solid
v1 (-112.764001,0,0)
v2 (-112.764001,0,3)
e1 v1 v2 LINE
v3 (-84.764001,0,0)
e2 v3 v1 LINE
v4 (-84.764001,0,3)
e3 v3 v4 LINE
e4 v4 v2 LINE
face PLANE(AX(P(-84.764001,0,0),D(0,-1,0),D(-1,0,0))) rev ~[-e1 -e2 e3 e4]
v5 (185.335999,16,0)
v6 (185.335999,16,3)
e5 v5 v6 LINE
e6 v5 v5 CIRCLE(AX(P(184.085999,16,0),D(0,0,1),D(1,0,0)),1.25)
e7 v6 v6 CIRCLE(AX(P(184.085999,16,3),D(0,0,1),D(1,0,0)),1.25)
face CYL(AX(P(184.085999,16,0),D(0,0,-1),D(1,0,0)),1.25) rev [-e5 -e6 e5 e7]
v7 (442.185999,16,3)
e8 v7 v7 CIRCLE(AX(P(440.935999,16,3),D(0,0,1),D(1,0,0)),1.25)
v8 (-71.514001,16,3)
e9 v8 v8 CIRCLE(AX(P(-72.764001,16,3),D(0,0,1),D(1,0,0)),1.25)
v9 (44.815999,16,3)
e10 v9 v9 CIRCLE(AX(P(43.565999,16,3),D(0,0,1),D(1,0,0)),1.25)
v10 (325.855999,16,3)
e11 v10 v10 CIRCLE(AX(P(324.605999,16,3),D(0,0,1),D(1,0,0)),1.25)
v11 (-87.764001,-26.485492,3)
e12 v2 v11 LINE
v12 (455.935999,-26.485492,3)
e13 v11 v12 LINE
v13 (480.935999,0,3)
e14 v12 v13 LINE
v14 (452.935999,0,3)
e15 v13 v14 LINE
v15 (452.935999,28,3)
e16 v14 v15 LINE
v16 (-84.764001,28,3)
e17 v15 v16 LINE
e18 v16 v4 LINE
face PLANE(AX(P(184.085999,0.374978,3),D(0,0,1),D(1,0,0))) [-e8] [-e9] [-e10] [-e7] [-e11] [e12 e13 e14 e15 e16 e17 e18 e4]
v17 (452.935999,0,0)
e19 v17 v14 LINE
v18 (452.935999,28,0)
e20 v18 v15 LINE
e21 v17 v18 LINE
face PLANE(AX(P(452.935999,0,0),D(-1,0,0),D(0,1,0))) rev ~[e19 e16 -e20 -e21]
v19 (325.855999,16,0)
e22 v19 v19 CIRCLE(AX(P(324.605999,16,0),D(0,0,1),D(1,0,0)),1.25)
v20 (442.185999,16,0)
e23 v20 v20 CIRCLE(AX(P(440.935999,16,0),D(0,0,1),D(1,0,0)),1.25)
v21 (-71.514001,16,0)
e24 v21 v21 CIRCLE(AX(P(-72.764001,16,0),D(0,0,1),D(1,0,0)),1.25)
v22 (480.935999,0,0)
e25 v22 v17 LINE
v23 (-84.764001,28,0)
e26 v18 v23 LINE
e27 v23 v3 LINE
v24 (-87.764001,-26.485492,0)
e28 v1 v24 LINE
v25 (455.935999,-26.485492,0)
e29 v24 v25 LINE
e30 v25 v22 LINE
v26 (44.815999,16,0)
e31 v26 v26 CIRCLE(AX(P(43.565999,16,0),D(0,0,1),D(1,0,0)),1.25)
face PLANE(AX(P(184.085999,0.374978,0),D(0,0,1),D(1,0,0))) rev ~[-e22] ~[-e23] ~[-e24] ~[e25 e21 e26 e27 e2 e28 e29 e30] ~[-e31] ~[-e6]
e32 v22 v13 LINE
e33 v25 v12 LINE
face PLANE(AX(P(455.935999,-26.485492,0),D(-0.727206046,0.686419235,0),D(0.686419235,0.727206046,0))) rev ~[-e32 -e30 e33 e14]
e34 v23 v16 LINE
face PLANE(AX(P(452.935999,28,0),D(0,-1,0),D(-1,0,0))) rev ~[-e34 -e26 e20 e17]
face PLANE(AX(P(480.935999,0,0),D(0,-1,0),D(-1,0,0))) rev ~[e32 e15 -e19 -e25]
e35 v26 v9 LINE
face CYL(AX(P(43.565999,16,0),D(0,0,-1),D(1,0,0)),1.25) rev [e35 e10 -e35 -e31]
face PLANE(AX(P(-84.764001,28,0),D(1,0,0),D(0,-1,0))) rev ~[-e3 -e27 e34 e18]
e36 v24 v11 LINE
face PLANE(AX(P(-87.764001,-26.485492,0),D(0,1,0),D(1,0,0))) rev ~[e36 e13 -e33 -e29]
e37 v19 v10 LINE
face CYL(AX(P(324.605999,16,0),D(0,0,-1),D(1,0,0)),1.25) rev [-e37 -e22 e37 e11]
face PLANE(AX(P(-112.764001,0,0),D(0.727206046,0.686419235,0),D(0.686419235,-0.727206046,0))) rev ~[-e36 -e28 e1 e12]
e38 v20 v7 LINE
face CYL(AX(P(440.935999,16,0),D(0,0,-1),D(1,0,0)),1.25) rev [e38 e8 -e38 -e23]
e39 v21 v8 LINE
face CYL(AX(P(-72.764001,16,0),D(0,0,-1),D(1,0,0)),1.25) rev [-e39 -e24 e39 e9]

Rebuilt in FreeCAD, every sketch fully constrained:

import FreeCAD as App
import Part
import Sketcher
from FreeCAD import Vector


def add_polygon(sketch, points):
    """Adds a closed chain of lines whose ends are joined by coincident constraints."""
    first, n = sketch.GeometryCount, len(points)
    for a, b in zip(points, points[1:] + points[:1]):
        sketch.addGeometry(Part.LineSegment(App.Vector(*a, 0), App.Vector(*b, 0)), False)
    for i in range(n):
        sketch.addConstraint(Sketcher.Constraint("Coincident", first + i, 2, first + (i + 1) % n, 1))

doc = App.newDocument("Part")
params = doc.addObject("Spreadsheet::Sheet", "Params")
for row, (alias, value) in enumerate([
    ("sketch1_diameter", "2.5 mm"),
    ("sketch1_width", "28 mm"),
    ("sketch1_width2", "543.7 mm"),
    ("sketch1_width3", "537.7 mm"),
    ("pad1_length", "3 mm"),
], start=1):
    params.set(f"A{row}", alias)
    params.set(f"B{row}", "=" + value)
    params.setAlias(f"B{row}", alias)

body = doc.addObject("PartDesign::Body", "Body")

# Sketch on XY plane
sketch1 = doc.addObject("Sketcher::SketchObject", "Sketch")
body.addObject(sketch1)
sketch1.AttachmentSupport = (doc.XY_Plane, [""])
sketch1.MapMode = "FlatFace"
add_polygon(sketch1, [(-87.8, -26.5), (455.9, -26.5), (480.9, 0), (452.9, 0), (452.9, 28), (-84.8, 28), (-84.8, 0), (-112.8, 0)])  # lines 0-7
sketch1.addGeometry(Part.Circle(Vector(-72.8, 16, 0), Vector(0, 0, 1), 1.2), False)  # 8
sketch1.addGeometry(Part.Circle(Vector(43.6, 16, 0), Vector(0, 0, 1), 1.2), False)  # 9
sketch1.addGeometry(Part.Circle(Vector(184.1, 16, 0), Vector(0, 0, 1), 1.2), False)  # 10
sketch1.addGeometry(Part.Circle(Vector(324.6, 16, 0), Vector(0, 0, 1), 1.2), False)  # 11
sketch1.addGeometry(Part.Circle(Vector(440.9, 16, 0), Vector(0, 0, 1), 1.2), False)  # 12
sketch1.addConstraint(Sketcher.Constraint("Horizontal", 0))
sketch1.addConstraint(Sketcher.Constraint("Horizontal", 2))
sketch1.addConstraint(Sketcher.Constraint("Vertical", 3))
sketch1.addConstraint(Sketcher.Constraint("Horizontal", 4))
sketch1.addConstraint(Sketcher.Constraint("Vertical", 5))
sketch1.addConstraint(Sketcher.Constraint("Horizontal", 6))
sketch1.addConstraint(Sketcher.Constraint("Equal", 8, 9))
sketch1.addConstraint(Sketcher.Constraint("Equal", 9, 10))
sketch1.addConstraint(Sketcher.Constraint("Equal", 10, 11))
sketch1.addConstraint(Sketcher.Constraint("Equal", 11, 12))
sketch1.addConstraint(Sketcher.Constraint("PointOnObject", 1, 2, -1))
sketch1.addConstraint(Sketcher.Constraint("PointOnObject", 5, 2, -1))
sketch1.addConstraint(Sketcher.Constraint("Horizontal", 8, 3, 9, 3))
sketch1.addConstraint(Sketcher.Constraint("Horizontal", 9, 3, 10, 3))
sketch1.addConstraint(Sketcher.Constraint("Horizontal", 10, 3, 11, 3))
sketch1.addConstraint(Sketcher.Constraint("Horizontal", 11, 3, 12, 3))
sketch1.addConstraint(Sketcher.Constraint("Equal", 2, 6))
sketch1.addConstraint(Sketcher.Constraint("Equal", 6, 3))
sketch1.addConstraint(Sketcher.Constraint("Equal", 1, 7))
sketch1.addConstraint(Sketcher.Constraint("Diameter", 8, 2.5))
sketch1.addConstraint(Sketcher.Constraint("DistanceX", 2, 2, 2, 1, 28.0))
sketch1.addConstraint(Sketcher.Constraint("DistanceX", 0, 1, 0, 2, 543.7))
sketch1.addConstraint(Sketcher.Constraint("DistanceX", 4, 2, 4, 1, 537.7))
sketch1.addConstraint(Sketcher.Constraint("DistanceY", -1, 1, 8, 3, 16.0))
sketch1.addConstraint(Sketcher.Constraint("DistanceX", 12, 3, 0, 2, 15.0))
sketch1.addConstraint(Sketcher.Constraint("DistanceX", 4, 2, 8, 3, 12.0))
sketch1.addConstraint(Sketcher.Constraint("DistanceX", 8, 3, 9, 3, 116.33))
sketch1.addConstraint(Sketcher.Constraint("DistanceX", 9, 3, 10, 3, 140.52))
sketch1.addConstraint(Sketcher.Constraint("DistanceX", 10, 3, 11, 3, 140.52))
sketch1.addConstraint(Sketcher.Constraint("DistanceX", 8, 3, -1, 1, 72.764001))
sketch1.addConstraint(Sketcher.Constraint("Distance", 1, 36.420891))
sketch1.setExpression("Constraints[27]", "Params.sketch1_diameter")
sketch1.setExpression("Constraints[28]", "Params.sketch1_width")
sketch1.setExpression("Constraints[29]", "Params.sketch1_width2")
sketch1.setExpression("Constraints[30]", "Params.sketch1_width3")
pad1 = doc.addObject("PartDesign::Pad", "Pad")
body.addObject(pad1)
pad1.Profile = sketch1
pad1.setExpression("Length", "Params.pad1_length")

doc.recompute()
